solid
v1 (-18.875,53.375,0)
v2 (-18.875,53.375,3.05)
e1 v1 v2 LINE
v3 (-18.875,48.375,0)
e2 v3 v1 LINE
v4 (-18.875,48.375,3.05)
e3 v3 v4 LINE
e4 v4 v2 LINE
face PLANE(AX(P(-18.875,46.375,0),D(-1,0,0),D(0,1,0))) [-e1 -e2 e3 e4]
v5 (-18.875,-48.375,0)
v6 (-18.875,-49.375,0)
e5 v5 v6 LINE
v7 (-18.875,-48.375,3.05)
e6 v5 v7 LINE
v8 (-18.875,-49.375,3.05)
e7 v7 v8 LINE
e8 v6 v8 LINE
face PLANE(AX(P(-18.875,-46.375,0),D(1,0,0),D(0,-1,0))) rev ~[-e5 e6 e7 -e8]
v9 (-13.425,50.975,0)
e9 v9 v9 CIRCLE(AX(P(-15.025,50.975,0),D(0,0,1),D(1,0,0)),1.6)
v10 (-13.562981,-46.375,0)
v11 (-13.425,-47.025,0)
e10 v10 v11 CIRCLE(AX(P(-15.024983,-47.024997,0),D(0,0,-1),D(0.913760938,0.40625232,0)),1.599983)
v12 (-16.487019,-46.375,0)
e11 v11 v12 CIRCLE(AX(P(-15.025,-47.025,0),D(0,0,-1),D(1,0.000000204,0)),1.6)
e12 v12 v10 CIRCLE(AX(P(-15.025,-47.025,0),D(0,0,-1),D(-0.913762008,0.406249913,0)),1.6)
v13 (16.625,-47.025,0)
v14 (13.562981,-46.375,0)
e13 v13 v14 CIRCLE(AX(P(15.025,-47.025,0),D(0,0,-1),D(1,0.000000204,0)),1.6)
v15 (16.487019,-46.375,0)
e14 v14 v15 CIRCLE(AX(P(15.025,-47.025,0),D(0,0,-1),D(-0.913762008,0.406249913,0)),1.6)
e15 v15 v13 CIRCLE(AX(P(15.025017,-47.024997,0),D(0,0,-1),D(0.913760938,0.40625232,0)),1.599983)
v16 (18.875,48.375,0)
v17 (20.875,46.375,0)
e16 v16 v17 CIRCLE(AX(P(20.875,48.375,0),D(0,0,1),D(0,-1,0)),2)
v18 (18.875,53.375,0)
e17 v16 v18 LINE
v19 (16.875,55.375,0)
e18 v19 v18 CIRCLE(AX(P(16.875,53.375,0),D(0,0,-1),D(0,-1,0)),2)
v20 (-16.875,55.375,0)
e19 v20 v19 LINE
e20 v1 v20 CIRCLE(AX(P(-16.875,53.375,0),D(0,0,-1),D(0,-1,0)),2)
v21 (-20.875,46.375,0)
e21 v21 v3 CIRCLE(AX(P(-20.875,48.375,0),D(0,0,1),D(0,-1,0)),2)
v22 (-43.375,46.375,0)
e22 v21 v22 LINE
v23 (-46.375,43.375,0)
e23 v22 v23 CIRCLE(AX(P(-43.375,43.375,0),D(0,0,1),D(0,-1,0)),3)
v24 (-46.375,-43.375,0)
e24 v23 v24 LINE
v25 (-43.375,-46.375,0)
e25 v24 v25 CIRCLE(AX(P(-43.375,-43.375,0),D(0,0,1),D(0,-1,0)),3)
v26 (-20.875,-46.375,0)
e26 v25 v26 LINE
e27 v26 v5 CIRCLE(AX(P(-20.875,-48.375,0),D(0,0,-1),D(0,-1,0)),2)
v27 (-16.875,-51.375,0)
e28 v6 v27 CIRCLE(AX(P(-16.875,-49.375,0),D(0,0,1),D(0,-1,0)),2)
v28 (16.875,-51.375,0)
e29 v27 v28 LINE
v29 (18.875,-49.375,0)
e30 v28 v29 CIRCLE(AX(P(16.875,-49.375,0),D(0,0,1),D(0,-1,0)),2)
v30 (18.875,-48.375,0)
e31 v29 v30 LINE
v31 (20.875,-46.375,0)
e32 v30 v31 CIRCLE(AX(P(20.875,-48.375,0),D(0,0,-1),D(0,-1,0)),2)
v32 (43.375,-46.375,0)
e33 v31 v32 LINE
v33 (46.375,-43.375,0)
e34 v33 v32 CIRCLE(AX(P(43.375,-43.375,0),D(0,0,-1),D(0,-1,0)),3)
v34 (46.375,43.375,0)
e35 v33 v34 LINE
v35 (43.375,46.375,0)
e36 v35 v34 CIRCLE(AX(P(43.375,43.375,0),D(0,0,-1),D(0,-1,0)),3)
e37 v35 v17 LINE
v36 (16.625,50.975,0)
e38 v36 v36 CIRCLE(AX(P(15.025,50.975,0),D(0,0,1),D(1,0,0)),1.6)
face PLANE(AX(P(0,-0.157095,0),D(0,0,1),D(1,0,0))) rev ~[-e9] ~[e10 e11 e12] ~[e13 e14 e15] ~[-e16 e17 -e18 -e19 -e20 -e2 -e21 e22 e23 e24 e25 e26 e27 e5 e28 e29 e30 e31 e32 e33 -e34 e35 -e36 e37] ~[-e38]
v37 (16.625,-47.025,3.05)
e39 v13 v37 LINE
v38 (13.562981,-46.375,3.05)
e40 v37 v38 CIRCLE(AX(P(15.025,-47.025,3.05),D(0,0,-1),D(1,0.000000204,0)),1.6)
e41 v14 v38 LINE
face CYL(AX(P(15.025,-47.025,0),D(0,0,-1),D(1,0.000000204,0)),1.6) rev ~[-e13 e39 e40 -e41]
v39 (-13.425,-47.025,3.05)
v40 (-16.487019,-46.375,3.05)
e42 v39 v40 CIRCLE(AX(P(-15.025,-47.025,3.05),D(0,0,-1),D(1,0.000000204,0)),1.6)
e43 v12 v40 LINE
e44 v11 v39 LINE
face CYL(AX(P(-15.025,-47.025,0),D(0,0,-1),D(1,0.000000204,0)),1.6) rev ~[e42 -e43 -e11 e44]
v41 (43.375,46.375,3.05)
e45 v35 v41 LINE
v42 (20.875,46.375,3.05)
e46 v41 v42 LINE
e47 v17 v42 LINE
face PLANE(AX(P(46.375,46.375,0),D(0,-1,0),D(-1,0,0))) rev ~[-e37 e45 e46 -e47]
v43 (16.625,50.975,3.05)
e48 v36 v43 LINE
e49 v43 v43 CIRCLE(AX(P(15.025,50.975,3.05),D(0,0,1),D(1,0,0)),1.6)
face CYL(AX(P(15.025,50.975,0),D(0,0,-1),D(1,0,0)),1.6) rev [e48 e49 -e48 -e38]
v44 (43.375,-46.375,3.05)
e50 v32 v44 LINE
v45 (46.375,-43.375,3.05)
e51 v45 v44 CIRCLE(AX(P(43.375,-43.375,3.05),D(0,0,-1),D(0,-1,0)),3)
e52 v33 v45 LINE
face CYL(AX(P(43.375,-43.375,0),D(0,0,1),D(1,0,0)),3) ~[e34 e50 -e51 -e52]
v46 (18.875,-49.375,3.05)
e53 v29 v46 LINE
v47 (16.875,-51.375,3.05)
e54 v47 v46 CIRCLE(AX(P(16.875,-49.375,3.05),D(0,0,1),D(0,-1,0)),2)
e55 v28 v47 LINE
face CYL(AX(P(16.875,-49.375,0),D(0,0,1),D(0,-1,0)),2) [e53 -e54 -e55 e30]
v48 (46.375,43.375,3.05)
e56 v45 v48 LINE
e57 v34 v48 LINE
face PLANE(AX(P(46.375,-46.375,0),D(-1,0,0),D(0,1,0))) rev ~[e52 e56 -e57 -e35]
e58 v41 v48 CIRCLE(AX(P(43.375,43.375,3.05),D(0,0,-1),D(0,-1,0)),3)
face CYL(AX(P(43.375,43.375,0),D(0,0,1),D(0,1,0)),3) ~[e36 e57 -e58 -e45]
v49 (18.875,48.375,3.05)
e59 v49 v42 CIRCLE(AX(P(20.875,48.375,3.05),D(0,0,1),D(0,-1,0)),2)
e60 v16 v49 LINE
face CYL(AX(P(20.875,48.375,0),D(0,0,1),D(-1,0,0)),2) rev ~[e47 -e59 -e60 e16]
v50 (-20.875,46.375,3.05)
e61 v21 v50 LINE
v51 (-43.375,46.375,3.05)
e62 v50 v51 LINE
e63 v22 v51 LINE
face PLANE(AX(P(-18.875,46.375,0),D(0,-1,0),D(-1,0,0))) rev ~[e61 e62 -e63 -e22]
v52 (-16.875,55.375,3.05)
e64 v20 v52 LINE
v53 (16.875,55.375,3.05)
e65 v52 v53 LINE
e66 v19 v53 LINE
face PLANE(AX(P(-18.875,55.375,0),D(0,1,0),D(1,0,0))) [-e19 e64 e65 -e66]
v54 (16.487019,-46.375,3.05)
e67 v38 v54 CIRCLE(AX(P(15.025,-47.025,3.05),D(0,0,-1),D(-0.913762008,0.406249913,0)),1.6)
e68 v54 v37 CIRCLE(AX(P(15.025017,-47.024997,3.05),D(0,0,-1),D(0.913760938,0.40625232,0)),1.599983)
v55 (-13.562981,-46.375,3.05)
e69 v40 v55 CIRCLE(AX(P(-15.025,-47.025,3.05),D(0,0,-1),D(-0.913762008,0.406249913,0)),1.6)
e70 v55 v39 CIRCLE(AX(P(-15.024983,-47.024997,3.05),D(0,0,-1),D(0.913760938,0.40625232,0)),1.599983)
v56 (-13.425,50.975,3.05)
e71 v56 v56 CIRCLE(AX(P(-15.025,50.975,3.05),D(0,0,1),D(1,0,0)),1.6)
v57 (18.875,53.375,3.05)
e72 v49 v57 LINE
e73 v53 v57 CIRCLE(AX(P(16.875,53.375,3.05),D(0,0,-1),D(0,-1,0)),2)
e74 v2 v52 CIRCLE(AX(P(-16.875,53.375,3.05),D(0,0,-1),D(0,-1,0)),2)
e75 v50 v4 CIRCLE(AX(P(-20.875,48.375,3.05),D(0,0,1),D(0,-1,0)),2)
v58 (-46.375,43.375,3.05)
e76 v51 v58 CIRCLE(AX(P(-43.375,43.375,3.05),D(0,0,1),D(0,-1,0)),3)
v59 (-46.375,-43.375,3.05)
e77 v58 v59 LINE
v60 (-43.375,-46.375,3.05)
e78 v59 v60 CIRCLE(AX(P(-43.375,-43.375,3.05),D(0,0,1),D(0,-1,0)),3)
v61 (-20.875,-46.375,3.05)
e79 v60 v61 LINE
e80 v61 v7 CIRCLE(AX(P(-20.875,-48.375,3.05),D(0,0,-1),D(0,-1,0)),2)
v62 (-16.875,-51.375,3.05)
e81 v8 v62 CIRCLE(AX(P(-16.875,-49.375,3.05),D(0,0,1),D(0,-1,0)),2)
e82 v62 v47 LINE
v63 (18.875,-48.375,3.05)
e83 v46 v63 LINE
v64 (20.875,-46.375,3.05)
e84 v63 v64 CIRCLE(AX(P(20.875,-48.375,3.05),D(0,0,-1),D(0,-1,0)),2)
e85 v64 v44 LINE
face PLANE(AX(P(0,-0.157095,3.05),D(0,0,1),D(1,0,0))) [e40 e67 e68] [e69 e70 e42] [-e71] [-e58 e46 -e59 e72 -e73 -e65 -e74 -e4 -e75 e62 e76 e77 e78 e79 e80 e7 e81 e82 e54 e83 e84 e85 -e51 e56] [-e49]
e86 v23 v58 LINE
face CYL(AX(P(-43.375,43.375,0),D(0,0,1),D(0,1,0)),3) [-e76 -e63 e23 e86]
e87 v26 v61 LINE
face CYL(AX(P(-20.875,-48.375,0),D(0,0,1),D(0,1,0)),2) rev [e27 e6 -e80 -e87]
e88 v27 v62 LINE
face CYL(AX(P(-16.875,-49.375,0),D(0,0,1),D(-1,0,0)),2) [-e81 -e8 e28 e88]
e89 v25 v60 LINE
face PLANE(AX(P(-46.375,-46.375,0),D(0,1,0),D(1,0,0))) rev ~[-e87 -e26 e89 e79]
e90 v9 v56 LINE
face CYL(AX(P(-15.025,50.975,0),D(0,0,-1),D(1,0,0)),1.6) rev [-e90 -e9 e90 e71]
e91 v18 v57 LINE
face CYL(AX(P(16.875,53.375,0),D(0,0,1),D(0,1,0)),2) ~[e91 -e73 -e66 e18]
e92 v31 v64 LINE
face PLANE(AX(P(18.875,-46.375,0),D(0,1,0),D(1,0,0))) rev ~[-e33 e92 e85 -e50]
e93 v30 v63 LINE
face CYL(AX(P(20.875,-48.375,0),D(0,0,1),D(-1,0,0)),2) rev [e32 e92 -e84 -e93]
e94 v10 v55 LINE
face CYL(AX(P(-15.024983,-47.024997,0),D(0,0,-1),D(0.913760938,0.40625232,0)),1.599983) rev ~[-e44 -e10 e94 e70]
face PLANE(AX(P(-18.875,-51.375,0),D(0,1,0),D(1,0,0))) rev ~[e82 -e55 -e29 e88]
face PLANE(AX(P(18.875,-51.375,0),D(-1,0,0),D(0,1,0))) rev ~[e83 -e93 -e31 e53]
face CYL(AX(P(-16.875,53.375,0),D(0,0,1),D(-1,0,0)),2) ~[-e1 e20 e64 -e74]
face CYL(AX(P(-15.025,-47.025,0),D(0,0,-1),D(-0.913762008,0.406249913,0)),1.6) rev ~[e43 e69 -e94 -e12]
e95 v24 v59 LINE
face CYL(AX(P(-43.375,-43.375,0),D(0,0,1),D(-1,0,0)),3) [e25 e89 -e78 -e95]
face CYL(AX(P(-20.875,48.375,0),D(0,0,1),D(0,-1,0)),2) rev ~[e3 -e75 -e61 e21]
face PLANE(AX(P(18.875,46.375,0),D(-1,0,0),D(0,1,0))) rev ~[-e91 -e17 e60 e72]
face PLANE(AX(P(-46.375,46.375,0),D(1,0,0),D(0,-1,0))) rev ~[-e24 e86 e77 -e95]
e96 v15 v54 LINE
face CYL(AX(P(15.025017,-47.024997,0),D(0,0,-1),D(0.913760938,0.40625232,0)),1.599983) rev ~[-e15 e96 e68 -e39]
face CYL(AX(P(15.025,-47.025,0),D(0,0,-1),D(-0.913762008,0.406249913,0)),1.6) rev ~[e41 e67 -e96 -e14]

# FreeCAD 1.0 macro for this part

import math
import FreeCAD as App
import Part
import Sketcher

V = App.Vector
Q = App.Units.Quantity


def edges_at(feature, points):
    """Names of the edges that pass closest to the given points."""
    edges = feature.Shape.Edges
    near = lambda p: min(range(len(edges)), key=lambda i: edges[i].distToShape(Part.Vertex(*p))[0])
    return sorted({f"Edge{near(p) + 1}" for p in points})

doc = App.newDocument("Part")
body = doc.addObject("PartDesign::Body", "Body")

# Sketch on XY plane
sketch1 = body.newObject("Sketcher::SketchObject", "Sketch")
sketch1.AttachmentSupport = (doc.getObject("XY_Plane"), [""])
sketch1.MapMode = "FlatFace"
sketch1.addGeometry(Part.LineSegment(V(-46.4, 46.4, 0), V(-46.4, -46.4, 0)), False)
sketch1.addGeometry(Part.LineSegment(V(-46.4, -46.4, 0), V(-18.9, -46.4, 0)), False)
sketch1.addGeometry(Part.LineSegment(V(-18.9, -46.4, 0), V(-18.9, -51.4, 0)), False)
sketch1.addGeometry(Part.LineSegment(V(-18.9, -51.4, 0), V(18.9, -51.4, 0)), False)
sketch1.addGeometry(Part.LineSegment(V(18.9, -51.4, 0), V(18.9, -46.4, 0)), False)
sketch1.addGeometry(Part.LineSegment(V(18.9, -46.4, 0), V(46.4, -46.4, 0)), False)
sketch1.addGeometry(Part.LineSegment(V(46.4, -46.4, 0), V(46.4, 46.4, 0)), False)
sketch1.addGeometry(Part.LineSegment(V(46.4, 46.4, 0), V(18.9, 46.4, 0)), False)
sketch1.addGeometry(Part.LineSegment(V(18.9, 46.4, 0), V(18.9, 55.4, 0)), False)
sketch1.addGeometry(Part.LineSegment(V(18.9, 55.4, 0), V(-18.9, 55.4, 0)), False)
sketch1.addGeometry(Part.LineSegment(V(-18.9, 55.4, 0), V(-18.9, 46.4, 0)), False)
sketch1.addGeometry(Part.LineSegment(V(-18.9, 46.4, 0), V(-46.4, 46.4, 0)), False)
sketch1.addGeometry(Part.ArcOfCircle(Part.Circle(V(-15, -47, 0), V(0, 0, 1), 1.6), math.radians(24), math.radians(156)), False)
sketch1.addGeometry(Part.ArcOfCircle(Part.Circle(V(-15, -47, 0), V(0, 0, 1), 1.6), math.radians(0), math.radians(24)), False)
sketch1.addGeometry(Part.ArcOfCircle(Part.Circle(V(-15, -47, 0), V(0, 0, 1), 1.6), math.radians(156), math.radians(360)), False)
sketch1.addGeometry(Part.ArcOfCircle(Part.Circle(V(15, -47, 0), V(0, 0, 1), 1.6), math.radians(24), math.radians(156)), False)
sketch1.addGeometry(Part.ArcOfCircle(Part.Circle(V(15, -47, 0), V(0, 0, 1), 1.6), math.radians(0), math.radians(24)), False)
sketch1.addGeometry(Part.ArcOfCircle(Part.Circle(V(15, -47, 0), V(0, 0, 1), 1.6), math.radians(156), math.radians(360)), False)
sketch1.addGeometry(Part.Circle(V(-15, 51, 0), V(0, 0, 1), 1.6), False)
sketch1.addGeometry(Part.Circle(V(15, 51, 0), V(0, 0, 1), 1.6), False)
sketch1.addConstraint(Sketcher.Constraint("Coincident", 0, 2, 1, 1))
sketch1.addConstraint(Sketcher.Constraint("Coincident", 1, 2, 2, 1))
sketch1.addConstraint(Sketcher.Constraint("Coincident", 2, 2, 3, 1))
sketch1.addConstraint(Sketcher.Constraint("Coincident", 3, 2, 4, 1))
sketch1.addConstraint(Sketcher.Constraint("Coincident", 4, 2, 5, 1))
sketch1.addConstraint(Sketcher.Constraint("Coincident", 5, 2, 6, 1))
sketch1.addConstraint(Sketcher.Constraint("Coincident", 6, 2, 7, 1))
sketch1.addConstraint(Sketcher.Constraint("Coincident", 7, 2, 8, 1))
sketch1.addConstraint(Sketcher.Constraint("Coincident", 8, 2, 9, 1))
sketch1.addConstraint(Sketcher.Constraint("Coincident", 9, 2, 10, 1))
sketch1.addConstraint(Sketcher.Constraint("Coincident", 10, 2, 11, 1))
sketch1.addConstraint(Sketcher.Constraint("Coincident", 11, 2, 0, 1))
sketch1.addConstraint(Sketcher.Constraint("Coincident", 12, 1, 13, 2))
sketch1.addConstraint(Sketcher.Constraint("Coincident", 13, 1, 14, 2))
sketch1.addConstraint(Sketcher.Constraint("Tangent", 14, 1, 12, 2))
sketch1.addConstraint(Sketcher.Constraint("Coincident", 15, 1, 16, 2))
sketch1.addConstraint(Sketcher.Constraint("Coincident", 16, 1, 17, 2))
sketch1.addConstraint(Sketcher.Constraint("Tangent", 17, 1, 15, 2))
sketch1.addConstraint(Sketcher.Constraint("Vertical", 0))
sketch1.addConstraint(Sketcher.Constraint("Horizontal", 1))
sketch1.addConstraint(Sketcher.Constraint("Vertical", 2))
sketch1.addConstraint(Sketcher.Constraint("Horizontal", 3))
sketch1.addConstraint(Sketcher.Constraint("Vertical", 4))
sketch1.addConstraint(Sketcher.Constraint("Horizontal", 5))
sketch1.addConstraint(Sketcher.Constraint("Vertical", 6))
sketch1.addConstraint(Sketcher.Constraint("Horizontal", 7))
sketch1.addConstraint(Sketcher.Constraint("Vertical", 8))
sketch1.addConstraint(Sketcher.Constraint("Horizontal", 9))
sketch1.addConstraint(Sketcher.Constraint("Vertical", 10))
sketch1.addConstraint(Sketcher.Constraint("Horizontal", 11))
sketch1.addConstraint(Sketcher.Constraint("Equal", 12, 14))
sketch1.addConstraint(Sketcher.Constraint("Equal", 14, 15))
sketch1.addConstraint(Sketcher.Constraint("Equal", 13, 16))
sketch1.addConstraint(Sketcher.Constraint("Equal", 15, 17))
sketch1.addConstraint(Sketcher.Constraint("Equal", 17, 18))
sketch1.addConstraint(Sketcher.Constraint("Equal", 18, 19))
sketch1.addConstraint(Sketcher.Constraint("Symmetric", 0, 2, 6, 2, -1, 1))
sketch1.addConstraint(Sketcher.Constraint("Symmetric", 4, 2, 10, 2, -1, 1))
sketch1.addConstraint(Sketcher.Constraint("Symmetric", 12, 3, 15, 3, -2))
sketch1.addConstraint(Sketcher.Constraint("Symmetric", 18, 3, 19, 3, -2))
sketch1.addConstraint(Sketcher.Constraint("Symmetric", 1, 2, 4, 2, -2))
sketch1.addConstraint(Sketcher.Constraint("Horizontal", 5, 2, 12, 1))
sketch1.addConstraint(Sketcher.Constraint("Horizontal", 17, 3, 13, 1))
sketch1.addConstraint(Sketcher.Constraint("Horizontal", 12, 1, 14, 1))
sketch1.addConstraint(Sketcher.Constraint("Horizontal", 14, 1, 15, 1))
sketch1.addConstraint(Sketcher.Constraint("Horizontal", 13, 1, 16, 1))
sketch1.addConstraint(Sketcher.Constraint("Horizontal", 15, 1, 17, 1))
sketch1.addConstraint(Sketcher.Constraint("Vertical", 14, 3, 18, 3))
sketch1.addConstraint(Sketcher.Constraint("Vertical", 4, 2, 7, 2))
sketch1.addConstraint(Sketcher.Constraint("Diameter", 18, Q("3.2 mm")))
sketch1.addConstraint(Sketcher.Constraint("DistanceY", 2, 2, 2, 1, Q("5 mm")))
sketch1.addConstraint(Sketcher.Constraint("DistanceY", 8, 1, 8, 2, Q("9 mm")))
sketch1.addConstraint(Sketcher.Constraint("DistanceX", 1, 1, 1, 2, Q("27.5 mm")))
sketch1.addConstraint(Sketcher.Constraint("DistanceY", 12, 3, 18, 3, Q("98 mm")))
sketch1.addConstraint(Sketcher.Constraint("DistanceX", 3, 1, 3, 2, Q("37.75 mm")))
sketch1.addConstraint(Sketcher.Constraint("DistanceY", 0, 2, 0, 1, Q("92.75 mm")))
sketch1.addConstraint(Sketcher.Constraint("DistanceX", 0, 2, 15, 3, Q("61.4 mm")))
sketch1.addConstraint(Sketcher.Constraint("DistanceY", 6, 2, 19, 3, Q("4.6 mm")))
sketch1.addConstraint(Sketcher.Constraint("Radius", 13, Q("1.599983 mm")))
pad1 = body.newObject("PartDesign::Pad", "Pad")
pad1.Profile = sketch1
pad1.Length = 3.05
doc.recompute()

fillet = body.newObject("PartDesign::Fillet", "Fillet")
fillet.Base = (pad1, edges_at(pad1, [
    (18.875, 46.375, 1.525),
    (-18.875, 46.375, 1.525),
    (-18.875, -46.375, 1.525),
    (18.875, -46.375, 1.525),
    (-18.875, 55.375, 1.525),
    (18.875, 55.375, 1.525),
    (18.875, -51.375, 1.525),
    (-18.875, -51.375, 1.525),
]))
fillet.Radius = 2
doc.recompute()

fillet2 = body.newObject("PartDesign::Fillet", "Fillet001")
fillet2.Base = (fillet, edges_at(fillet, [
    (-46.375, -46.375, 1.525),
    (46.375, -46.375, 1.525),
    (46.375, 46.375, 1.525),
    (-46.375, 46.375, 1.525),
]))
fillet2.Radius = 3

doc.recompute()
